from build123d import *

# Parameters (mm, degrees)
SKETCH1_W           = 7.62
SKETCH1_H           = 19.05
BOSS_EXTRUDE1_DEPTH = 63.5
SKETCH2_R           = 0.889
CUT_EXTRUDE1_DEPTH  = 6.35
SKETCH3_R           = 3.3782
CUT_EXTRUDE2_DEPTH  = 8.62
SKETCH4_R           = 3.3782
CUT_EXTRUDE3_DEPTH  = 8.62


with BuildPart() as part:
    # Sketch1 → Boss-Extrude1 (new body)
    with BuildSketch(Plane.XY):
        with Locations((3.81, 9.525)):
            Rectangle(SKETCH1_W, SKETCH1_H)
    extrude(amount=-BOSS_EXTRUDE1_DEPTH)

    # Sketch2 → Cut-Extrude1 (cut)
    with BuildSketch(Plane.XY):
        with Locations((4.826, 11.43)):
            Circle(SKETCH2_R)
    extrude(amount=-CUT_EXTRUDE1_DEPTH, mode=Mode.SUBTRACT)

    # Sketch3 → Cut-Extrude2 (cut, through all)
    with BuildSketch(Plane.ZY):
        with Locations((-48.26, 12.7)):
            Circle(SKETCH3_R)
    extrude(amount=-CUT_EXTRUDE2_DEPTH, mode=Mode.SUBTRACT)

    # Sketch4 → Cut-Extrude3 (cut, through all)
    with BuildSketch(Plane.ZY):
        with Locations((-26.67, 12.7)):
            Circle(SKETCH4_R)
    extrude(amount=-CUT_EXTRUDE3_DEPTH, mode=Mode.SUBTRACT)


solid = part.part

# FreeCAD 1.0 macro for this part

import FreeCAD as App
import Part
import Sketcher
from FreeCAD import Vector
Q = App.Units.Quantity

doc = App.newDocument("Part")
body = doc.addObject("PartDesign::Body", "Body")

sketch1 = doc.addObject("Sketcher::SketchObject", "Sketch")
body.addObject(sketch1)
sketch1.AttachmentSupport = (doc.XY_Plane, [""])
sketch1.MapMode = "FlatFace"
sketch1.addGeometry([
    Part.LineSegment(Vector(0, 19, 0), Vector(0, 0, 0)),
    Part.LineSegment(Vector(0, 0, 0), Vector(8, 0, 0)),
    Part.LineSegment(Vector(8, 0, 0), Vector(8, 19, 0)),
    Part.LineSegment(Vector(8, 19, 0), Vector(0, 19, 0)),
], False)
sketch1.addConstraint([
    Sketcher.Constraint("Coincident", 0, 2, 1, 1),
    Sketcher.Constraint("Coincident", 1, 2, 2, 1),
    Sketcher.Constraint("Coincident", 2, 2, 3, 1),
    Sketcher.Constraint("Coincident", 3, 2, 0, 1),
    Sketcher.Constraint("Vertical", 0),
    Sketcher.Constraint("Horizontal", 1),
    Sketcher.Constraint("Vertical", 2),
    Sketcher.Constraint("Horizontal", 3),
    Sketcher.Constraint("Coincident", 0, 2, -1, 1),
    Sketcher.Constraint("DistanceX", 1, 1, 1, 2, Q("0.3 in")),
    Sketcher.Constraint("DistanceY", 0, 2, 0, 1, Q("0.75 in")),
])
pad1 = doc.addObject("PartDesign::Pad", "Pad")
body.addObject(pad1)
pad1.Profile = sketch1
pad1.Length = Q("2.5 in")
pad1.Reversed = True

sketch2 = doc.addObject("Sketcher::SketchObject", "Sketch001")
body.addObject(sketch2)
sketch2.AttachmentSupport = (doc.XY_Plane, [""])
sketch2.MapMode = "FlatFace"
sketch2.addGeometry(Part.Circle(Vector(4.8, 11.4, 0), Vector(0, 0, 1), 0.9), False)
sketch2.addConstraint([
    Sketcher.Constraint("Diameter", 0, Q("0.07 in")),
    Sketcher.Constraint("DistanceX", -1, 1, 0, 3, Q("0.19 in")),
    Sketcher.Constraint("DistanceY", -1, 1, 0, 3, Q("0.45 in")),
])
pocket1 = doc.addObject("PartDesign::Pocket", "Pocket")
body.addObject(pocket1)
pocket1.Profile = sketch2
pocket1.Length = Q("0.25 in")

sketch3 = doc.addObject("Sketcher::SketchObject", "Sketch002")
body.addObject(sketch3)
sketch3.AttachmentSupport = (doc.YZ_Plane, [""])
sketch3.MapMode = "FlatFace"
sketch3.addGeometry(Part.Circle(Vector(12.7, -48.3, 0), Vector(0, 0, 1), 3.4), False)
sketch3.addConstraint([
    Sketcher.Constraint("Diameter", 0, Q("0.266 in")),
    Sketcher.Constraint("DistanceX", -1, 1, 0, 3, Q("0.5 in")),
    Sketcher.Constraint("DistanceY", 0, 3, -1, 1, Q("1.9 in")),
])
pocket2 = doc.addObject("PartDesign::Pocket", "Pocket001")
body.addObject(pocket2)
pocket2.Profile = sketch3
pocket2.Type = "ThroughAll"
pocket2.Reversed = True

sketch4 = doc.addObject("Sketcher::SketchObject", "Sketch003")
body.addObject(sketch4)
sketch4.AttachmentSupport = (doc.YZ_Plane, [""])
sketch4.MapMode = "FlatFace"
sketch4.addGeometry(Part.Circle(Vector(12.7, -26.7, 0), Vector(0, 0, 1), 3.4), False)
sketch4.addConstraint([
    Sketcher.Constraint("Diameter", 0, Q("0.266 in")),
    Sketcher.Constraint("DistanceX", -1, 1, 0, 3, Q("0.5 in")),
    Sketcher.Constraint("DistanceY", 0, 3, -1, 1, Q("1.05 in")),
])
pocket3 = doc.addObject("PartDesign::Pocket", "Pocket002")
body.addObject(pocket3)
pocket3.Profile = sketch4
pocket3.Type = "ThroughAll"
pocket3.Reversed = True

doc.recompute()
